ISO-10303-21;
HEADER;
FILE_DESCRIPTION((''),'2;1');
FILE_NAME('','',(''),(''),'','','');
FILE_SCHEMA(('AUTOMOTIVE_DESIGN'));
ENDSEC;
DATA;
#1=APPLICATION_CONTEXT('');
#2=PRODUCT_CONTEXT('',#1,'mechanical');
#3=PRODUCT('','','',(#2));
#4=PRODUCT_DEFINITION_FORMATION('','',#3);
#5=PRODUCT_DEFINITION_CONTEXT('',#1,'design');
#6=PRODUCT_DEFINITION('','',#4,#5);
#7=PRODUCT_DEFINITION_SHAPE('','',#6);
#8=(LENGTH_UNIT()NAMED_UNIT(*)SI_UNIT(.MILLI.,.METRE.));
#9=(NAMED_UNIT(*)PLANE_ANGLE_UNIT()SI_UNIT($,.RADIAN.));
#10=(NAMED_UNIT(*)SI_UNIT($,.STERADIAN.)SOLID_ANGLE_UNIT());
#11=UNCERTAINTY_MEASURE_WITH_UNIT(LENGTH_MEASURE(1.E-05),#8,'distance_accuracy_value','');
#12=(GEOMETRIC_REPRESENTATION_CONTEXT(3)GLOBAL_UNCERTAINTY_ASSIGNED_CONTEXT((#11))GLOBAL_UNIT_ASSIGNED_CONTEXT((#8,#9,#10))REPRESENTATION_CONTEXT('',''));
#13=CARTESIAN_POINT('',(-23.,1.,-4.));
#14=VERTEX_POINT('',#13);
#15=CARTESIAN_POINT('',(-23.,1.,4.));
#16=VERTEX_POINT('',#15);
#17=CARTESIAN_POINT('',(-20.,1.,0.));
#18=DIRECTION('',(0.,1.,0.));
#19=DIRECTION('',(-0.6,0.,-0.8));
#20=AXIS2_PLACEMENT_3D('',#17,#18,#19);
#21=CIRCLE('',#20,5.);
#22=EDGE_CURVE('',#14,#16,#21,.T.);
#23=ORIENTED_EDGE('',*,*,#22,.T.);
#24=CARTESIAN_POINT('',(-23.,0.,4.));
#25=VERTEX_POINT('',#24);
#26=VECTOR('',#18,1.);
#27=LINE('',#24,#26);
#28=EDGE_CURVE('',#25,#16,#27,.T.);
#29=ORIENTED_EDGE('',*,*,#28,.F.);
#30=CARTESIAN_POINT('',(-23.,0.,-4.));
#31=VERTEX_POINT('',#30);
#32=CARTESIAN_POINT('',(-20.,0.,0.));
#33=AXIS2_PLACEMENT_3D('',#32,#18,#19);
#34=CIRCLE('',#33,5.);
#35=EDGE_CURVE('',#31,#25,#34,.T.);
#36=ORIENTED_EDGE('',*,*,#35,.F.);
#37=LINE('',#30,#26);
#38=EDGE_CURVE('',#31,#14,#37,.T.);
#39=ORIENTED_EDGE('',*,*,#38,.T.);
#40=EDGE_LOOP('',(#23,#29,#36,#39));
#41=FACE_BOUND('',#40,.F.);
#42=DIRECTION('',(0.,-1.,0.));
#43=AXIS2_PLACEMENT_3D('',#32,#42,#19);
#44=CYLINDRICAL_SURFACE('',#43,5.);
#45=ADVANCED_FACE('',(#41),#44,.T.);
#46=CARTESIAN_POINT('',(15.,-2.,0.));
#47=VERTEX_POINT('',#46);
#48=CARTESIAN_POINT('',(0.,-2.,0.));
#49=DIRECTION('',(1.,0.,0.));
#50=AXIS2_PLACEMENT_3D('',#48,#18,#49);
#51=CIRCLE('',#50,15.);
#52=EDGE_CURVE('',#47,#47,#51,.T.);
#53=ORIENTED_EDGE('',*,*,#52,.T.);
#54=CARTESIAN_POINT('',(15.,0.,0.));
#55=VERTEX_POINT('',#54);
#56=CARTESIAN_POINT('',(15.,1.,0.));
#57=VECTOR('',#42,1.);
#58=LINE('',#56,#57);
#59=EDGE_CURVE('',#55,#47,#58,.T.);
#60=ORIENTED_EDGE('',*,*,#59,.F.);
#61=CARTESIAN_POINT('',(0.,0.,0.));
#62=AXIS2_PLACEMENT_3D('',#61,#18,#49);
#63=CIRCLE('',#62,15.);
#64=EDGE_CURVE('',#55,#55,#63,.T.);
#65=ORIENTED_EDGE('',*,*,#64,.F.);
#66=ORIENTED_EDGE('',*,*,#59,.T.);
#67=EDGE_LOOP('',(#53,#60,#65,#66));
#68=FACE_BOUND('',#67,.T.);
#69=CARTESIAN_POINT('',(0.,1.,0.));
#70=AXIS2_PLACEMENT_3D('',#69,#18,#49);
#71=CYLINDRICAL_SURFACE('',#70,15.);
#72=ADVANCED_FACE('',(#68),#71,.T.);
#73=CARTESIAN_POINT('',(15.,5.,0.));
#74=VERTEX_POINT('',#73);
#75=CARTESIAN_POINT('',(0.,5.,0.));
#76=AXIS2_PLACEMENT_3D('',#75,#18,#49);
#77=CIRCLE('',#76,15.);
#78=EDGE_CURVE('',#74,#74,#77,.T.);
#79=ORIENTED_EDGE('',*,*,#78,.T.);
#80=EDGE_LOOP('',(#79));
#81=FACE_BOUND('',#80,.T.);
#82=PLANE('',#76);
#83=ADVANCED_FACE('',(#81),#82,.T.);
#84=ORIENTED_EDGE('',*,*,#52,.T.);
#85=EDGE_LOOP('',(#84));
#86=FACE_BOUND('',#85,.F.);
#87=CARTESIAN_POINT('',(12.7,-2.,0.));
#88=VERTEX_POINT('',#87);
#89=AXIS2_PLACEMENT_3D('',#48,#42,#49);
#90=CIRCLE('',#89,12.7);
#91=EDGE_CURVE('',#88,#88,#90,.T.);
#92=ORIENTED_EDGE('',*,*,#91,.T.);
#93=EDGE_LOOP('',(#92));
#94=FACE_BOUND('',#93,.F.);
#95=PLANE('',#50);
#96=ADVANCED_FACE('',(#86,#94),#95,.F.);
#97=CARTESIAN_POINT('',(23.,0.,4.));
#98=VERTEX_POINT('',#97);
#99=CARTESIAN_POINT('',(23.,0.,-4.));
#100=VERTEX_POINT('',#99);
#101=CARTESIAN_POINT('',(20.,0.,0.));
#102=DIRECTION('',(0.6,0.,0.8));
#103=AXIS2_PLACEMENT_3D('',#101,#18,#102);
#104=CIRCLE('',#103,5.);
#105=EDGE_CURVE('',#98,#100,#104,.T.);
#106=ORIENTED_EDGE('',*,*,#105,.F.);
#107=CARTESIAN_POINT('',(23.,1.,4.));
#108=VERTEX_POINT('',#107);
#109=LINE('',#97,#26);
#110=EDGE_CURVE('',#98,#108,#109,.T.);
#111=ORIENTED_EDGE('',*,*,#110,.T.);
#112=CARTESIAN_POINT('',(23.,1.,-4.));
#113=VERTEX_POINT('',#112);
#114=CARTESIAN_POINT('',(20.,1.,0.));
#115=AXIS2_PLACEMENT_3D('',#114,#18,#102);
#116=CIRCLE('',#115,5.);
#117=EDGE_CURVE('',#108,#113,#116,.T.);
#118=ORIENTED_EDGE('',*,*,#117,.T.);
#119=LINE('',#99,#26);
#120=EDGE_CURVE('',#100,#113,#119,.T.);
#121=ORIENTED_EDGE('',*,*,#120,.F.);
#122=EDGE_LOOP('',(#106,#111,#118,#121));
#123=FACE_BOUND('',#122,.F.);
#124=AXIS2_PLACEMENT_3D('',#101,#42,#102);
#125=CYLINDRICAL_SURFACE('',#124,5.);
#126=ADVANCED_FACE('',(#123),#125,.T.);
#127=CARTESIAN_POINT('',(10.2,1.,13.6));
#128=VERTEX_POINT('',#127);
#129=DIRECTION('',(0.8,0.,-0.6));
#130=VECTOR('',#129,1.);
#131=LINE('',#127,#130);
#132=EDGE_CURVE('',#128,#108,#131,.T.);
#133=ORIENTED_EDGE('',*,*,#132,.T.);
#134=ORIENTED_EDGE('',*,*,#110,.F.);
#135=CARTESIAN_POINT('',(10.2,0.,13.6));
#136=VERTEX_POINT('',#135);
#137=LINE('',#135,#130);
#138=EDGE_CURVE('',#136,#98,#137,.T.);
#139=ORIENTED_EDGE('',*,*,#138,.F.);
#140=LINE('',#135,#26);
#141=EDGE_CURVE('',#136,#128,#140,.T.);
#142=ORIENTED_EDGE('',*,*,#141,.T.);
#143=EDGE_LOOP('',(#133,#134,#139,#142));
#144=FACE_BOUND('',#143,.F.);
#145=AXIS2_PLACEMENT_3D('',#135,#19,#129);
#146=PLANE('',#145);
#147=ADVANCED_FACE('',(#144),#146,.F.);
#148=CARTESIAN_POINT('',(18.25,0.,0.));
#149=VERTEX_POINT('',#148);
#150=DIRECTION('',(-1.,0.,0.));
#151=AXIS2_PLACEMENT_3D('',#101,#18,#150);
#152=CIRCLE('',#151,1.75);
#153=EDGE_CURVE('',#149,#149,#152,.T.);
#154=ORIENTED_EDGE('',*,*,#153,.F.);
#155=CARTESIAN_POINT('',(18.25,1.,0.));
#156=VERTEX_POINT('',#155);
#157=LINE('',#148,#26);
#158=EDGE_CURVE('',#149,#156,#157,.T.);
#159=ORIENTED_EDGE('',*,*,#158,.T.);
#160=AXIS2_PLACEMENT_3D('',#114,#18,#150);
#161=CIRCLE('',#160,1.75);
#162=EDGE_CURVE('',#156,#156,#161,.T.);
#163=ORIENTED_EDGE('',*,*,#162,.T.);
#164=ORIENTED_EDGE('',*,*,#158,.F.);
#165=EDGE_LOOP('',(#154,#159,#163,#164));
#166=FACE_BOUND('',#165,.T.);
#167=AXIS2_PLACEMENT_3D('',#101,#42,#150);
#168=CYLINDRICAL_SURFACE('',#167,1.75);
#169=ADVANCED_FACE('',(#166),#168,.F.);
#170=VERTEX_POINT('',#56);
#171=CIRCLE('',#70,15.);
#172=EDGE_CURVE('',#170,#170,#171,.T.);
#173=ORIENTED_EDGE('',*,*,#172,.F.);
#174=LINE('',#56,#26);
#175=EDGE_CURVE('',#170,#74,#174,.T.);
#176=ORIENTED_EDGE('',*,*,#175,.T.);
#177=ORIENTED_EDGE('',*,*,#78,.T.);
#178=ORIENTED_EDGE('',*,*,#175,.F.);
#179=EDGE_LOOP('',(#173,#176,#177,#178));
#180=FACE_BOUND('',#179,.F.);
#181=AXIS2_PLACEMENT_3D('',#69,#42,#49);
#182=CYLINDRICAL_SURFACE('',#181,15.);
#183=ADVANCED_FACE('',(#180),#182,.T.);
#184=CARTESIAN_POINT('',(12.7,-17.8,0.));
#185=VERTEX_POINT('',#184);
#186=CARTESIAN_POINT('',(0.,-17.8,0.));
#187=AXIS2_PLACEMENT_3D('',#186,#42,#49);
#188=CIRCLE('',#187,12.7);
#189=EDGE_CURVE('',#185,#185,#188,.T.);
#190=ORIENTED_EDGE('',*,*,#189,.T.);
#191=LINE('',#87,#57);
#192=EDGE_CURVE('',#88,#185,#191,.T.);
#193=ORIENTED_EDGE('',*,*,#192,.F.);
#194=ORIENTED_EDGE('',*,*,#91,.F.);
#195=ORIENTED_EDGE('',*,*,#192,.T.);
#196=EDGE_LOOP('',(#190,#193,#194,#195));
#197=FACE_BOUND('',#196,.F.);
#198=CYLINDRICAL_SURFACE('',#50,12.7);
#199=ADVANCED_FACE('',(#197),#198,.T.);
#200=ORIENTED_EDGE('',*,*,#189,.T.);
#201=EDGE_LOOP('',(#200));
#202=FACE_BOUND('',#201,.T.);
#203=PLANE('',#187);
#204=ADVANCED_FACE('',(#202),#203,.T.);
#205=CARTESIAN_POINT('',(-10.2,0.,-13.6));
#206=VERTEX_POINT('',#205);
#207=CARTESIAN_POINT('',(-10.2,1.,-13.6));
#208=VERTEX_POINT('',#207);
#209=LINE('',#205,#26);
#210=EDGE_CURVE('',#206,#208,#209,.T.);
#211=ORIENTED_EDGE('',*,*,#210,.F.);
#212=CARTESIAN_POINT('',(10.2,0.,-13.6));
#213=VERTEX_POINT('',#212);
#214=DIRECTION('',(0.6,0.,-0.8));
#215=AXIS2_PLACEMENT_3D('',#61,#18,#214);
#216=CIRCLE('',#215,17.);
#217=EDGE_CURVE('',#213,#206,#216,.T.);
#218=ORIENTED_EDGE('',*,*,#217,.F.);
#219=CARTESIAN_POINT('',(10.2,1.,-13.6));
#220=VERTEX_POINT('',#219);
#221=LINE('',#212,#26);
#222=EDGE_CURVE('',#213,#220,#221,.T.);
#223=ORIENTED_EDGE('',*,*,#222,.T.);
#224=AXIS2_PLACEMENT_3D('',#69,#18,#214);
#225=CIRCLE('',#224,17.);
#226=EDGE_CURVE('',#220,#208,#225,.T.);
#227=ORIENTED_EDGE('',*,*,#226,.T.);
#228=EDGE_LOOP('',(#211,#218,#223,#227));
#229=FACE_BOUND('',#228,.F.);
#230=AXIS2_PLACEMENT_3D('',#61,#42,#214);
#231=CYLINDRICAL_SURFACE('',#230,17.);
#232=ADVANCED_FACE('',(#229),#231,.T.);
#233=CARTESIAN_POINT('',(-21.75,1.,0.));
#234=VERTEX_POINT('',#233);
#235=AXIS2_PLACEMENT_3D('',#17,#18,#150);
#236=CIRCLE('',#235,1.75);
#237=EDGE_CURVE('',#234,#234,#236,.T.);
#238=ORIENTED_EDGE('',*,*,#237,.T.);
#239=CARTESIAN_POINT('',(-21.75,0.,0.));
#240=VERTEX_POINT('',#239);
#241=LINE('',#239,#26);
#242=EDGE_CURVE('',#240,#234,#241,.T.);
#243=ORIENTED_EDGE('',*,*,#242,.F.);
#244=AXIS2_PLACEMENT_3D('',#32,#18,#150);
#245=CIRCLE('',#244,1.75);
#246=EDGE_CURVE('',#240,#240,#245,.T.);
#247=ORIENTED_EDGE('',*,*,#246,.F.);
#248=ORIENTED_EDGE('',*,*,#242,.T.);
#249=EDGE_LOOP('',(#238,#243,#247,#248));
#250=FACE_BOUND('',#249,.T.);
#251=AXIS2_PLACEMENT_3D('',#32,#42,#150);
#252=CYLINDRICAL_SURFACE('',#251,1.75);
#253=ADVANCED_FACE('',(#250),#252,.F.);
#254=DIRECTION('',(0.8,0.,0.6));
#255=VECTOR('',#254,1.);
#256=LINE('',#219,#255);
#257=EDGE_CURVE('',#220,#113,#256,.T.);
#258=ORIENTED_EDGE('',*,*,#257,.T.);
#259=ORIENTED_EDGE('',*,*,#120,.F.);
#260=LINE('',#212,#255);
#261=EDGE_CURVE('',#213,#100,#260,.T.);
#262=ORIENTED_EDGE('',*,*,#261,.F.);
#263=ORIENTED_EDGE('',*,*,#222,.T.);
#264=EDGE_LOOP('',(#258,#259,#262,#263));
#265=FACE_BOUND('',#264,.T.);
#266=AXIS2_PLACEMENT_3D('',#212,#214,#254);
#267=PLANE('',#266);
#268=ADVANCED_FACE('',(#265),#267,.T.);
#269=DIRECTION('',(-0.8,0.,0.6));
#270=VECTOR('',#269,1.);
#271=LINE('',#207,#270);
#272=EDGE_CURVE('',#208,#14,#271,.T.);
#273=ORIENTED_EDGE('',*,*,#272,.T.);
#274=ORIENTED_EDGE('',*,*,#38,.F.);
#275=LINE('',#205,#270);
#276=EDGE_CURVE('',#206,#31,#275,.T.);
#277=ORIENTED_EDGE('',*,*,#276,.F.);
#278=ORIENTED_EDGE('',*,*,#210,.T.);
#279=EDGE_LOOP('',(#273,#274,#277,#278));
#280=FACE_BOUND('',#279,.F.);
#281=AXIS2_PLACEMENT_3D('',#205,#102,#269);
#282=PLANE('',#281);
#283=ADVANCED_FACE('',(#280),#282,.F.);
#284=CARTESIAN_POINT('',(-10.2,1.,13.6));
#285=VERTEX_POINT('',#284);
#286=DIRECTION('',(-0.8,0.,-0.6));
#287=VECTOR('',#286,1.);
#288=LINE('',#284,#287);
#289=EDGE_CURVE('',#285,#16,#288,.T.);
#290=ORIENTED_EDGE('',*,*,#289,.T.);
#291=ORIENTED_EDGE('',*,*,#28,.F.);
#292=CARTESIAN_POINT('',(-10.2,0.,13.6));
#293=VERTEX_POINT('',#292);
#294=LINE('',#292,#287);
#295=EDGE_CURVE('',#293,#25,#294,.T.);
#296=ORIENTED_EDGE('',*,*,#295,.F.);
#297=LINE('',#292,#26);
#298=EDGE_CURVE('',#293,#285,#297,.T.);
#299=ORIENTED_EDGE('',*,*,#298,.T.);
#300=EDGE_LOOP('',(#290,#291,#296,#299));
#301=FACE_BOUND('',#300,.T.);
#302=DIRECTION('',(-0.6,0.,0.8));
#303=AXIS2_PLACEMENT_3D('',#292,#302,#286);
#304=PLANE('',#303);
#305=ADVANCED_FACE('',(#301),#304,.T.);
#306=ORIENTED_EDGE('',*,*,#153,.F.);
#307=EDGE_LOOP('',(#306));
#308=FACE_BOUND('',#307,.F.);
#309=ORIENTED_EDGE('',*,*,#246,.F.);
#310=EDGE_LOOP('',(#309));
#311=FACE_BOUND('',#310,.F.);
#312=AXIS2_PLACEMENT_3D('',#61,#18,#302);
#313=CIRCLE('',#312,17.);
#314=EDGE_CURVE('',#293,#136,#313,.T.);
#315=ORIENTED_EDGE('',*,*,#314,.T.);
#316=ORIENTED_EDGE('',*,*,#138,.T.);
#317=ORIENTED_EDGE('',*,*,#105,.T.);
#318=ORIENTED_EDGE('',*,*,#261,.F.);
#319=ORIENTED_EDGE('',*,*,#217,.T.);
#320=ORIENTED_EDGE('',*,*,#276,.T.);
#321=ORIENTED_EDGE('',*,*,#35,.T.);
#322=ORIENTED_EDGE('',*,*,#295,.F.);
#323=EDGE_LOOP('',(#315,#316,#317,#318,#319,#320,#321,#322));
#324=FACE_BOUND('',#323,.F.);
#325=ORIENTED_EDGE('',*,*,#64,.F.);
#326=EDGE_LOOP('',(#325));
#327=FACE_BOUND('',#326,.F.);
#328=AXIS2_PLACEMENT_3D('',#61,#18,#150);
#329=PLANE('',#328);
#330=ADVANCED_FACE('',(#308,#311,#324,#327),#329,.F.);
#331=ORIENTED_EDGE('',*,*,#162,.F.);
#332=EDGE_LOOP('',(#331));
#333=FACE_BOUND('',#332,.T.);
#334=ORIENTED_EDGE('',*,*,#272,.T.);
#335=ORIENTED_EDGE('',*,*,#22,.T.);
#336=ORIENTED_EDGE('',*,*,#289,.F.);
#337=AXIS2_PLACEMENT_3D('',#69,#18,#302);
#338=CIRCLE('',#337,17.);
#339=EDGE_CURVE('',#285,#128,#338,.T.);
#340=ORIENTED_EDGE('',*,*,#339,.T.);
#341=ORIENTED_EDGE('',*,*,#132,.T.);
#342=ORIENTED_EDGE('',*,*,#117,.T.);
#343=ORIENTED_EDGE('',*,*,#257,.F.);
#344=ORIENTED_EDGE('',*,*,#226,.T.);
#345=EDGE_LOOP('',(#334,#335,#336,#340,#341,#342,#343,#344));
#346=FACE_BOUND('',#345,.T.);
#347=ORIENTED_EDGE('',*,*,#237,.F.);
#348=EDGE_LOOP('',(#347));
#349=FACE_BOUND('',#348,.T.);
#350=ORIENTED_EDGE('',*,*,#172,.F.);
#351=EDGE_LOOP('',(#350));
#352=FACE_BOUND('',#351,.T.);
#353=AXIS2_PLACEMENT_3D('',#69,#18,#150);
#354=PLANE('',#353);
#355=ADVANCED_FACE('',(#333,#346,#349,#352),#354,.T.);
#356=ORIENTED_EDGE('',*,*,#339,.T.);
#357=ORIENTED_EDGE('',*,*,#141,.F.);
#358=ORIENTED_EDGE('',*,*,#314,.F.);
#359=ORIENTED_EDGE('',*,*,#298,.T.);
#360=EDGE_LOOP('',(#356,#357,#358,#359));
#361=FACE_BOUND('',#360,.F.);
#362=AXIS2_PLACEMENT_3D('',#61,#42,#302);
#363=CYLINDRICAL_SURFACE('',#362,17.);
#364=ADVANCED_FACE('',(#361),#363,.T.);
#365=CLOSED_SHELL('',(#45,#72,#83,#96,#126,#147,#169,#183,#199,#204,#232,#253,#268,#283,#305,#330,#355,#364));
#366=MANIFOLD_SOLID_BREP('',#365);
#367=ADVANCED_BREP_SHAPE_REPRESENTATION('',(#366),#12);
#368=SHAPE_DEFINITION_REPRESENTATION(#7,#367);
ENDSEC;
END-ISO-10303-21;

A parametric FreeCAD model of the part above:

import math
import FreeCAD as App
import Part
import Sketcher
from FreeCAD import Vector

doc = App.newDocument("Part")
body = doc.addObject("PartDesign::Body", "Body")

sketch1 = body.newObject("Sketcher::SketchObject", "Sketch")
sketch1.AttachmentSupport = (doc.getObject("XZ_Plane"), [""])
sketch1.MapMode = "FlatFace"
sketch1.addGeometry([
    Part.LineSegment(Vector(-23, 4, 0), Vector(-10.2, 13.6, 0)),
    Part.ArcOfCircle(Part.Circle(Vector(0, 0, 0), Vector(0, 0, 1), 17), math.radians(53), math.radians(127)),
    Part.LineSegment(Vector(10.2, 13.6, 0), Vector(23, 4, 0)),
    Part.ArcOfCircle(Part.Circle(Vector(20, 0, 0), Vector(0, 0, 1), 5), math.radians(-53), math.radians(53)),
    Part.LineSegment(Vector(23, -4, 0), Vector(10.2, -13.6, 0)),
    Part.ArcOfCircle(Part.Circle(Vector(0, 0, 0), Vector(0, 0, 1), 17), math.radians(-127), math.radians(-53)),
    Part.LineSegment(Vector(-10.2, -13.6, 0), Vector(-23, -4, 0)),
    Part.ArcOfCircle(Part.Circle(Vector(-20, 0, 0), Vector(0, 0, 1), 5), math.radians(127), math.radians(233)),
    Part.Circle(Vector(20, 0, 0), Vector(0, 0, 1), 1.8),
    Part.Circle(Vector(-20, 0, 0), Vector(0, 0, 1), 1.8),
], False)
sketch1.addConstraint([
    Sketcher.Constraint("Tangent", 0, 2, 1, 2),
    Sketcher.Constraint("Tangent", 1, 1, 2, 1),
    Sketcher.Constraint("Tangent", 2, 2, 3, 2),
    Sketcher.Constraint("Tangent", 3, 1, 4, 1),
    Sketcher.Constraint("Tangent", 4, 2, 5, 2),
    Sketcher.Constraint("Tangent", 5, 1, 6, 1),
    Sketcher.Constraint("Tangent", 6, 2, 7, 2),
    Sketcher.Constraint("Tangent", 7, 1, 0, 1),
    Sketcher.Constraint("Coincident", 1, 3, -1, 1),
    Sketcher.Constraint("Coincident", 5, 3, -1, 1),
    Sketcher.Constraint("Coincident", 8, 3, 3, 3),
    Sketcher.Constraint("Coincident", 9, 3, 7, 3),
    Sketcher.Constraint("Equal", 1, 5),
    Sketcher.Constraint("Equal", 3, 7),
    Sketcher.Constraint("Equal", 8, 9),
    Sketcher.Constraint("Symmetric", 3, 3, 7, 3, -1, 1),
    Sketcher.Constraint("PointOnObject", 3, 3, -1),
    Sketcher.Constraint("Radius", 1, 17.0),
    Sketcher.Constraint("Radius", 3, 5.0),
    Sketcher.Constraint("Diameter", 8, 3.5),
    Sketcher.Constraint("DistanceX", -1, 1, 3, 3, 20.0),
])
pad1 = body.newObject("PartDesign::Pad", "Pad")
pad1.Profile = sketch1
pad1.Length = 1
pad1.Reversed = True

sketch2 = body.newObject("Sketcher::SketchObject", "Sketch001")
sketch2.AttachmentSupport = (doc.getObject("XZ_Plane"), [""])
sketch2.MapMode = "FlatFace"
sketch2.AttachmentOffset = App.Placement(Vector(0, 0, -1), App.Rotation())
sketch2.addGeometry(Part.Circle(Vector(0, 0, 0), Vector(0, 0, 1), 15), False)
sketch2.addConstraint([
    Sketcher.Constraint("Coincident", 0, 3, -1, 1),
    Sketcher.Constraint("Diameter", 0, 30.0),
])
pad2 = body.newObject("PartDesign::Pad", "Pad001")
pad2.Profile = sketch2
pad2.Type = "TwoLengths"
pad2.Length = 4
pad2.Length2 = 3
pad2.Reversed = True

sketch3 = body.newObject("Sketcher::SketchObject", "Sketch002")
sketch3.AttachmentSupport = (doc.getObject("XZ_Plane"), [""])
sketch3.MapMode = "FlatFace"
sketch3.AttachmentOffset = App.Placement(Vector(0, 0, 2), App.Rotation())
sketch3.addGeometry(Part.Circle(Vector(0, 0, 0), Vector(0, 0, 1), 13), False)
sketch3.addConstraint([
    Sketcher.Constraint("Coincident", 0, 3, -1, 1),
    Sketcher.Constraint("Diameter", 0, 25.4),
])
pad3 = body.newObject("PartDesign::Pad", "Pad002")
pad3.Profile = sketch3
pad3.Length = 15.8

doc.recompute()
